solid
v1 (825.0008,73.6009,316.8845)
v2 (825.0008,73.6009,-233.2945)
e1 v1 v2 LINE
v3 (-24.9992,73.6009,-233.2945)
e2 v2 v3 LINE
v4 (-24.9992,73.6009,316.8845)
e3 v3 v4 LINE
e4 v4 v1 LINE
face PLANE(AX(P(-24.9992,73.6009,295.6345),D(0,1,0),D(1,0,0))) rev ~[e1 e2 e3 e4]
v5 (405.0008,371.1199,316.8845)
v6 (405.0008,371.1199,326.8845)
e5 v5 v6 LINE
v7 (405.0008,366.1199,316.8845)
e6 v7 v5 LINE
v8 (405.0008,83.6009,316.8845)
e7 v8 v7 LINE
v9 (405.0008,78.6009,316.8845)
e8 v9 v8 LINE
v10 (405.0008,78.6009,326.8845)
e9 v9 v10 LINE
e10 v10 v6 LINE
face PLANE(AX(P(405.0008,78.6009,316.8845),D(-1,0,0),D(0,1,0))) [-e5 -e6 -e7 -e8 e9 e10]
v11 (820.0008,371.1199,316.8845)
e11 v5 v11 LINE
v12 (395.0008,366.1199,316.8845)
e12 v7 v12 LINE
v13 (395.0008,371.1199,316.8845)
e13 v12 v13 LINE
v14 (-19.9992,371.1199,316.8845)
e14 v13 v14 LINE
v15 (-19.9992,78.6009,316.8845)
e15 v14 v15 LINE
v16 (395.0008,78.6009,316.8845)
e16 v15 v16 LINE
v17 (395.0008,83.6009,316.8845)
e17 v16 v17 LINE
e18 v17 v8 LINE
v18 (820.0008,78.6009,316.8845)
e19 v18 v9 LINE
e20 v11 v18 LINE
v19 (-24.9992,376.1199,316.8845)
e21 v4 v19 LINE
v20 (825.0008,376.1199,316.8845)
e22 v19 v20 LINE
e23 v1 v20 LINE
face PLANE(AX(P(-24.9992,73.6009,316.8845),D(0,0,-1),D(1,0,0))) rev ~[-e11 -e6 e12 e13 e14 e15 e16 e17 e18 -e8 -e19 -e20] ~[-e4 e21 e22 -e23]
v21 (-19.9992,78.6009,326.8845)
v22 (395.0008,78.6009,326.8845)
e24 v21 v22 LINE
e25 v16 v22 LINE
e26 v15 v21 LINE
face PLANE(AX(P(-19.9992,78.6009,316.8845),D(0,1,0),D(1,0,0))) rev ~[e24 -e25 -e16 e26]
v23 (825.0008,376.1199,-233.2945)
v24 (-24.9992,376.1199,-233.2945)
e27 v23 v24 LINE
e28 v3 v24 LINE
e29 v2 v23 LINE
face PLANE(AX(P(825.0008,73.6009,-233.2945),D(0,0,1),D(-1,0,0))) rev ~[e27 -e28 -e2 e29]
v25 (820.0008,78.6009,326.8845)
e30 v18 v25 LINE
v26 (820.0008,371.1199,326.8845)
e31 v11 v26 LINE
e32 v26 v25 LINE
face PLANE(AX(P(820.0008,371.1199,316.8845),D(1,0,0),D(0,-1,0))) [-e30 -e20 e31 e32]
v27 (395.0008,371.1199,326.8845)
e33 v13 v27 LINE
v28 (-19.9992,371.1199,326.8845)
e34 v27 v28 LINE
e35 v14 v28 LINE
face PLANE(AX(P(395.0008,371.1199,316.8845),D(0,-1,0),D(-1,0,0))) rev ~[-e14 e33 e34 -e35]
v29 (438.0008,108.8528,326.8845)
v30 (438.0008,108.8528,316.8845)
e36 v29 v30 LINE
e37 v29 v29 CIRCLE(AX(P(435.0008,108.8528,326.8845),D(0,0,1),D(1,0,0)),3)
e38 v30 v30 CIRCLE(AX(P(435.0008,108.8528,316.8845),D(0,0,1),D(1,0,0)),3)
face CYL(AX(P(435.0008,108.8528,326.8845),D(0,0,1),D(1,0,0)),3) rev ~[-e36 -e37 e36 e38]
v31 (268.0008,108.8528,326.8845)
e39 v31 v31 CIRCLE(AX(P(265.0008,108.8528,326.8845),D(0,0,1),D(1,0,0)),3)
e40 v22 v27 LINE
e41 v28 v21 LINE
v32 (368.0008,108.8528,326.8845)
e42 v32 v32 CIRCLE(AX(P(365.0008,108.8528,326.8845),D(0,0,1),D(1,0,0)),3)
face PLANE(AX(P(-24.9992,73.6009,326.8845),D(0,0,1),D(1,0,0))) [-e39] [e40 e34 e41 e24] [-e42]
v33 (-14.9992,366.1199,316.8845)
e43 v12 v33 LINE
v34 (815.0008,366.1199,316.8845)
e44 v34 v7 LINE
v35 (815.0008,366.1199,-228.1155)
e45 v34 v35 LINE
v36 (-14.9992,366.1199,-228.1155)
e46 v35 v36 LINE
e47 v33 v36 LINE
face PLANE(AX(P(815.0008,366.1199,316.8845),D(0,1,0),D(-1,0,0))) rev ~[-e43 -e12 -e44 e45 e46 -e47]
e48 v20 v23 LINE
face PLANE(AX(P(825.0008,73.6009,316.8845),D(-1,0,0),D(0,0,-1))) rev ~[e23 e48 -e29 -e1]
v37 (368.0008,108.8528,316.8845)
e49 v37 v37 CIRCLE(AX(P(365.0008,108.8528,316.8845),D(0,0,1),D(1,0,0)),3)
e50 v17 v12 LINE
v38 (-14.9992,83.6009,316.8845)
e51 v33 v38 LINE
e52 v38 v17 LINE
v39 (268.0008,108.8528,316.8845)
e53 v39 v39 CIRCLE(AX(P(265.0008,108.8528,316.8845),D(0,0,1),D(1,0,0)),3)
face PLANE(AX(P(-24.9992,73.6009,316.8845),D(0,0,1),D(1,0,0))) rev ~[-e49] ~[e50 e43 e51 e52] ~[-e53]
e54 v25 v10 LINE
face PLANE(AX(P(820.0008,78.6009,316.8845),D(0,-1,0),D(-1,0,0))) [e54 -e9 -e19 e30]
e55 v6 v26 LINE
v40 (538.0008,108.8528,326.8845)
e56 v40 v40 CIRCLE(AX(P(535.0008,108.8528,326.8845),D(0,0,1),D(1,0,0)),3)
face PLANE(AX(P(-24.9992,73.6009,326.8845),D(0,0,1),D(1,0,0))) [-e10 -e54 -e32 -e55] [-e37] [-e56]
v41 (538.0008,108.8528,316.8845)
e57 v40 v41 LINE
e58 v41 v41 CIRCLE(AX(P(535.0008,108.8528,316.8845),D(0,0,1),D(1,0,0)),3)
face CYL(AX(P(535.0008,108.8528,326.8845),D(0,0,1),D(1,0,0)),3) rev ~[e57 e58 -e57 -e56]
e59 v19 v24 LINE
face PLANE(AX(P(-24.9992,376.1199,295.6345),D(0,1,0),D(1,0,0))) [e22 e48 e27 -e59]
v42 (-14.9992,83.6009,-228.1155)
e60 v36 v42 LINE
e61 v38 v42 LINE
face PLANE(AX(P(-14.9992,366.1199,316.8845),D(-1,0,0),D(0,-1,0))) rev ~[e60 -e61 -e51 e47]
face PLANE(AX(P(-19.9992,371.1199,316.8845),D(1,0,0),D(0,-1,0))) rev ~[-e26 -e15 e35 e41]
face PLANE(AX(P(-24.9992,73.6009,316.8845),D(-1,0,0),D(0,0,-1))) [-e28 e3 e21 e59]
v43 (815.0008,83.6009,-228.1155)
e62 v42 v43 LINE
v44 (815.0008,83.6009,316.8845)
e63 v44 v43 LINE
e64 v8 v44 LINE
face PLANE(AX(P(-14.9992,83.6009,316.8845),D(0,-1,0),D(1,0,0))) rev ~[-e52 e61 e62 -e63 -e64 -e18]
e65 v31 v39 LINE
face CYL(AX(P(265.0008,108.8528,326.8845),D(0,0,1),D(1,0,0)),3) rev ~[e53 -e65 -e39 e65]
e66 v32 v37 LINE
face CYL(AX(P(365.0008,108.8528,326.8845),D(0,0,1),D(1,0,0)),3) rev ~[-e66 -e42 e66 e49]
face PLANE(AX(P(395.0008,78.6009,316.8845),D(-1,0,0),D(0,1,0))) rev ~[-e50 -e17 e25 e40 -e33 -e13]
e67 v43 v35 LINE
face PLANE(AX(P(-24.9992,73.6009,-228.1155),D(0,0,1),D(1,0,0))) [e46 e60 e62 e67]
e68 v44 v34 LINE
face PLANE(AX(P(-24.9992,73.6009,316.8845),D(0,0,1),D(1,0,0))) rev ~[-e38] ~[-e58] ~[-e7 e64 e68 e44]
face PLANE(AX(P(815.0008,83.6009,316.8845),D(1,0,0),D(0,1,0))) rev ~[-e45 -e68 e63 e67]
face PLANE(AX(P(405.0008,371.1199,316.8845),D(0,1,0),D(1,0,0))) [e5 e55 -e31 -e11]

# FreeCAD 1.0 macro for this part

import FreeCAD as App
import Part
import Sketcher


def add_polygon(sketch, points):
    """Adds a closed chain of lines whose ends are joined by coincident constraints."""
    first, n = sketch.GeometryCount, len(points)
    for a, b in zip(points, points[1:] + points[:1]):
        sketch.addGeometry(Part.LineSegment(App.Vector(*a, 0), App.Vector(*b, 0)), False)
    for i in range(n):
        sketch.addConstraint(Sketcher.Constraint("Coincident", first + i, 2, first + (i + 1) % n, 1))

doc = App.newDocument("Part")
body = doc.addObject("PartDesign::Body", "Body")

sketch1 = body.newObject("Sketcher::SketchObject", "Sketch")
sketch1.AttachmentSupport = (doc.getObject("XZ_Plane"), [""])
sketch1.MapMode = "FlatFace"
sketch1.AttachmentOffset = App.Placement(App.Vector(0, 0, -73.6009), App.Rotation())
add_polygon(sketch1, [(-25, -233), (-25, 317), (825, 317), (825, -233)])
sketch1.addConstraint(Sketcher.Constraint("Vertical", 0))
sketch1.addConstraint(Sketcher.Constraint("Horizontal", 1))
sketch1.addConstraint(Sketcher.Constraint("Vertical", 2))
sketch1.addConstraint(Sketcher.Constraint("Horizontal", 3))
sketch1.addConstraint(Sketcher.Constraint("DistanceX", 1, 1, 1, 2, 850.0))
sketch1.addConstraint(Sketcher.Constraint("DistanceY", 0, 1, 0, 2, 550.179))
sketch1.addConstraint(Sketcher.Constraint("DistanceX", 0, 2, -1, 1, 24.9992))
sketch1.addConstraint(Sketcher.Constraint("DistanceY", -1, 1, 0, 2, 316.8845))
pad1 = body.newObject("PartDesign::Pad", "Pad")
pad1.Profile = sketch1
pad1.Length = 302.519
pad1.Reversed = True

sketch2 = body.newObject("Sketcher::SketchObject", "Sketch001")
sketch2.AttachmentSupport = (doc.getObject("XY_Plane"), [""])
sketch2.MapMode = "FlatFace"
sketch2.AttachmentOffset = App.Placement(App.Vector(0, 0, 316.8845), App.Rotation())
add_polygon(sketch2, [(-15, 366), (-15, 84), (815, 84), (815, 366)])
sketch2.addConstraint(Sketcher.Constraint("Vertical", 0))
sketch2.addConstraint(Sketcher.Constraint("Horizontal", 1))
sketch2.addConstraint(Sketcher.Constraint("Vertical", 2))
sketch2.addConstraint(Sketcher.Constraint("Horizontal", 3))
sketch2.addConstraint(Sketcher.Constraint("DistanceX", 1, 1, 1, 2, 830.0))
sketch2.addConstraint(Sketcher.Constraint("DistanceY", 0, 2, 0, 1, 282.519))
sketch2.addConstraint(Sketcher.Constraint("DistanceY", -1, 1, 2, 2, 366.12))
sketch2.addConstraint(Sketcher.Constraint("DistanceX", 0, 2, -1, 1, 14.9992))
pocket1 = body.newObject("PartDesign::Pocket", "Pocket")
pocket1.Profile = sketch2
pocket1.Length = 545

sketch3 = body.newObject("Sketcher::SketchObject", "Sketch002")
sketch3.AttachmentSupport = (doc.getObject("XY_Plane"), [""])
sketch3.MapMode = "FlatFace"
sketch3.AttachmentOffset = App.Placement(App.Vector(0, 0, 316.8845), App.Rotation())
add_polygon(sketch3, [(-20, 371), (-20, 79), (395, 79), (395, 371)])
add_polygon(sketch3, [(820, 371), (405, 371), (405, 79), (820, 79)])
sketch3.addConstraint(Sketcher.Constraint("Vertical", 0))
sketch3.addConstraint(Sketcher.Constraint("Horizontal", 1))
sketch3.addConstraint(Sketcher.Constraint("Vertical", 2))
sketch3.addConstraint(Sketcher.Constraint("Horizontal", 3))
sketch3.addConstraint(Sketcher.Constraint("Horizontal", 4))
sketch3.addConstraint(Sketcher.Constraint("Vertical", 5))
sketch3.addConstraint(Sketcher.Constraint("Horizontal", 6))
sketch3.addConstraint(Sketcher.Constraint("Vertical", 7))
sketch3.addConstraint(Sketcher.Constraint("Horizontal", 3, 2, 4, 2))
sketch3.addConstraint(Sketcher.Constraint("Horizontal", 1, 2, 5, 2))
sketch3.addConstraint(Sketcher.Constraint("Equal", 3, 4))
sketch3.addConstraint(Sketcher.Constraint("DistanceX", 1, 1, 1, 2, 415.0))
sketch3.addConstraint(Sketcher.Constraint("DistanceX", 2, 2, 4, 2, 10.0))
sketch3.addConstraint(Sketcher.Constraint("DistanceY", 0, 2, 0, 1, 292.519))
sketch3.addConstraint(Sketcher.Constraint("DistanceY", -1, 1, 2, 2, 371.12))
sketch3.addConstraint(Sketcher.Constraint("DistanceX", 0, 2, -1, 1, 19.9992))
pad2 = body.newObject("PartDesign::Pad", "Pad001")
pad2.Profile = sketch3
pad2.Length = 10

sketch4 = body.newObject("Sketcher::SketchObject", "Sketch003")
sketch4.AttachmentSupport = (doc.getObject("XY_Plane"), [""])
sketch4.MapMode = "FlatFace"
sketch4.AttachmentOffset = App.Placement(App.Vector(0, 0, 326.8845), App.Rotation())
sketch4.addGeometry(Part.Circle(App.Vector(265, 108.9, 0), App.Vector(0, 0, 1), 3), False)
sketch4.addGeometry(Part.Circle(App.Vector(365, 108.9, 0), App.Vector(0, 0, 1), 3), False)
sketch4.addGeometry(Part.Circle(App.Vector(535, 108.9, 0), App.Vector(0, 0, 1), 3), False)
sketch4.addGeometry(Part.Circle(App.Vector(435, 108.9, 0), App.Vector(0, 0, 1), 3), False)
sketch4.addConstraint(Sketcher.Constraint("Equal", 0, 1))
sketch4.addConstraint(Sketcher.Constraint("Equal", 1, 2))
sketch4.addConstraint(Sketcher.Constraint("Equal", 2, 3))
sketch4.addConstraint(Sketcher.Constraint("Horizontal", 0, 3, 1, 3))
sketch4.addConstraint(Sketcher.Constraint("Horizontal", 1, 3, 2, 3))
sketch4.addConstraint(Sketcher.Constraint("Horizontal", 2, 3, 3, 3))
sketch4.addConstraint(Sketcher.Constraint("Diameter", 0, 6.0))
sketch4.addConstraint(Sketcher.Constraint("DistanceX", 0, 3, 1, 3, 100.0))
sketch4.addConstraint(Sketcher.Constraint("DistanceX", 1, 3, 2, 3, 170.0))
sketch4.addConstraint(Sketcher.Constraint("DistanceX", 1, 3, 3, 3, 70.0))
sketch4.addConstraint(Sketcher.Constraint("DistanceX", -1, 1, 0, 3, 265.0008))
sketch4.addConstraint(Sketcher.Constraint("DistanceY", -1, 1, 0, 3, 108.8528))
pocket2 = body.newObject("PartDesign::Pocket", "Pocket001")
pocket2.Profile = sketch4
pocket2.Type = "UpToFirst"

doc.recompute()
